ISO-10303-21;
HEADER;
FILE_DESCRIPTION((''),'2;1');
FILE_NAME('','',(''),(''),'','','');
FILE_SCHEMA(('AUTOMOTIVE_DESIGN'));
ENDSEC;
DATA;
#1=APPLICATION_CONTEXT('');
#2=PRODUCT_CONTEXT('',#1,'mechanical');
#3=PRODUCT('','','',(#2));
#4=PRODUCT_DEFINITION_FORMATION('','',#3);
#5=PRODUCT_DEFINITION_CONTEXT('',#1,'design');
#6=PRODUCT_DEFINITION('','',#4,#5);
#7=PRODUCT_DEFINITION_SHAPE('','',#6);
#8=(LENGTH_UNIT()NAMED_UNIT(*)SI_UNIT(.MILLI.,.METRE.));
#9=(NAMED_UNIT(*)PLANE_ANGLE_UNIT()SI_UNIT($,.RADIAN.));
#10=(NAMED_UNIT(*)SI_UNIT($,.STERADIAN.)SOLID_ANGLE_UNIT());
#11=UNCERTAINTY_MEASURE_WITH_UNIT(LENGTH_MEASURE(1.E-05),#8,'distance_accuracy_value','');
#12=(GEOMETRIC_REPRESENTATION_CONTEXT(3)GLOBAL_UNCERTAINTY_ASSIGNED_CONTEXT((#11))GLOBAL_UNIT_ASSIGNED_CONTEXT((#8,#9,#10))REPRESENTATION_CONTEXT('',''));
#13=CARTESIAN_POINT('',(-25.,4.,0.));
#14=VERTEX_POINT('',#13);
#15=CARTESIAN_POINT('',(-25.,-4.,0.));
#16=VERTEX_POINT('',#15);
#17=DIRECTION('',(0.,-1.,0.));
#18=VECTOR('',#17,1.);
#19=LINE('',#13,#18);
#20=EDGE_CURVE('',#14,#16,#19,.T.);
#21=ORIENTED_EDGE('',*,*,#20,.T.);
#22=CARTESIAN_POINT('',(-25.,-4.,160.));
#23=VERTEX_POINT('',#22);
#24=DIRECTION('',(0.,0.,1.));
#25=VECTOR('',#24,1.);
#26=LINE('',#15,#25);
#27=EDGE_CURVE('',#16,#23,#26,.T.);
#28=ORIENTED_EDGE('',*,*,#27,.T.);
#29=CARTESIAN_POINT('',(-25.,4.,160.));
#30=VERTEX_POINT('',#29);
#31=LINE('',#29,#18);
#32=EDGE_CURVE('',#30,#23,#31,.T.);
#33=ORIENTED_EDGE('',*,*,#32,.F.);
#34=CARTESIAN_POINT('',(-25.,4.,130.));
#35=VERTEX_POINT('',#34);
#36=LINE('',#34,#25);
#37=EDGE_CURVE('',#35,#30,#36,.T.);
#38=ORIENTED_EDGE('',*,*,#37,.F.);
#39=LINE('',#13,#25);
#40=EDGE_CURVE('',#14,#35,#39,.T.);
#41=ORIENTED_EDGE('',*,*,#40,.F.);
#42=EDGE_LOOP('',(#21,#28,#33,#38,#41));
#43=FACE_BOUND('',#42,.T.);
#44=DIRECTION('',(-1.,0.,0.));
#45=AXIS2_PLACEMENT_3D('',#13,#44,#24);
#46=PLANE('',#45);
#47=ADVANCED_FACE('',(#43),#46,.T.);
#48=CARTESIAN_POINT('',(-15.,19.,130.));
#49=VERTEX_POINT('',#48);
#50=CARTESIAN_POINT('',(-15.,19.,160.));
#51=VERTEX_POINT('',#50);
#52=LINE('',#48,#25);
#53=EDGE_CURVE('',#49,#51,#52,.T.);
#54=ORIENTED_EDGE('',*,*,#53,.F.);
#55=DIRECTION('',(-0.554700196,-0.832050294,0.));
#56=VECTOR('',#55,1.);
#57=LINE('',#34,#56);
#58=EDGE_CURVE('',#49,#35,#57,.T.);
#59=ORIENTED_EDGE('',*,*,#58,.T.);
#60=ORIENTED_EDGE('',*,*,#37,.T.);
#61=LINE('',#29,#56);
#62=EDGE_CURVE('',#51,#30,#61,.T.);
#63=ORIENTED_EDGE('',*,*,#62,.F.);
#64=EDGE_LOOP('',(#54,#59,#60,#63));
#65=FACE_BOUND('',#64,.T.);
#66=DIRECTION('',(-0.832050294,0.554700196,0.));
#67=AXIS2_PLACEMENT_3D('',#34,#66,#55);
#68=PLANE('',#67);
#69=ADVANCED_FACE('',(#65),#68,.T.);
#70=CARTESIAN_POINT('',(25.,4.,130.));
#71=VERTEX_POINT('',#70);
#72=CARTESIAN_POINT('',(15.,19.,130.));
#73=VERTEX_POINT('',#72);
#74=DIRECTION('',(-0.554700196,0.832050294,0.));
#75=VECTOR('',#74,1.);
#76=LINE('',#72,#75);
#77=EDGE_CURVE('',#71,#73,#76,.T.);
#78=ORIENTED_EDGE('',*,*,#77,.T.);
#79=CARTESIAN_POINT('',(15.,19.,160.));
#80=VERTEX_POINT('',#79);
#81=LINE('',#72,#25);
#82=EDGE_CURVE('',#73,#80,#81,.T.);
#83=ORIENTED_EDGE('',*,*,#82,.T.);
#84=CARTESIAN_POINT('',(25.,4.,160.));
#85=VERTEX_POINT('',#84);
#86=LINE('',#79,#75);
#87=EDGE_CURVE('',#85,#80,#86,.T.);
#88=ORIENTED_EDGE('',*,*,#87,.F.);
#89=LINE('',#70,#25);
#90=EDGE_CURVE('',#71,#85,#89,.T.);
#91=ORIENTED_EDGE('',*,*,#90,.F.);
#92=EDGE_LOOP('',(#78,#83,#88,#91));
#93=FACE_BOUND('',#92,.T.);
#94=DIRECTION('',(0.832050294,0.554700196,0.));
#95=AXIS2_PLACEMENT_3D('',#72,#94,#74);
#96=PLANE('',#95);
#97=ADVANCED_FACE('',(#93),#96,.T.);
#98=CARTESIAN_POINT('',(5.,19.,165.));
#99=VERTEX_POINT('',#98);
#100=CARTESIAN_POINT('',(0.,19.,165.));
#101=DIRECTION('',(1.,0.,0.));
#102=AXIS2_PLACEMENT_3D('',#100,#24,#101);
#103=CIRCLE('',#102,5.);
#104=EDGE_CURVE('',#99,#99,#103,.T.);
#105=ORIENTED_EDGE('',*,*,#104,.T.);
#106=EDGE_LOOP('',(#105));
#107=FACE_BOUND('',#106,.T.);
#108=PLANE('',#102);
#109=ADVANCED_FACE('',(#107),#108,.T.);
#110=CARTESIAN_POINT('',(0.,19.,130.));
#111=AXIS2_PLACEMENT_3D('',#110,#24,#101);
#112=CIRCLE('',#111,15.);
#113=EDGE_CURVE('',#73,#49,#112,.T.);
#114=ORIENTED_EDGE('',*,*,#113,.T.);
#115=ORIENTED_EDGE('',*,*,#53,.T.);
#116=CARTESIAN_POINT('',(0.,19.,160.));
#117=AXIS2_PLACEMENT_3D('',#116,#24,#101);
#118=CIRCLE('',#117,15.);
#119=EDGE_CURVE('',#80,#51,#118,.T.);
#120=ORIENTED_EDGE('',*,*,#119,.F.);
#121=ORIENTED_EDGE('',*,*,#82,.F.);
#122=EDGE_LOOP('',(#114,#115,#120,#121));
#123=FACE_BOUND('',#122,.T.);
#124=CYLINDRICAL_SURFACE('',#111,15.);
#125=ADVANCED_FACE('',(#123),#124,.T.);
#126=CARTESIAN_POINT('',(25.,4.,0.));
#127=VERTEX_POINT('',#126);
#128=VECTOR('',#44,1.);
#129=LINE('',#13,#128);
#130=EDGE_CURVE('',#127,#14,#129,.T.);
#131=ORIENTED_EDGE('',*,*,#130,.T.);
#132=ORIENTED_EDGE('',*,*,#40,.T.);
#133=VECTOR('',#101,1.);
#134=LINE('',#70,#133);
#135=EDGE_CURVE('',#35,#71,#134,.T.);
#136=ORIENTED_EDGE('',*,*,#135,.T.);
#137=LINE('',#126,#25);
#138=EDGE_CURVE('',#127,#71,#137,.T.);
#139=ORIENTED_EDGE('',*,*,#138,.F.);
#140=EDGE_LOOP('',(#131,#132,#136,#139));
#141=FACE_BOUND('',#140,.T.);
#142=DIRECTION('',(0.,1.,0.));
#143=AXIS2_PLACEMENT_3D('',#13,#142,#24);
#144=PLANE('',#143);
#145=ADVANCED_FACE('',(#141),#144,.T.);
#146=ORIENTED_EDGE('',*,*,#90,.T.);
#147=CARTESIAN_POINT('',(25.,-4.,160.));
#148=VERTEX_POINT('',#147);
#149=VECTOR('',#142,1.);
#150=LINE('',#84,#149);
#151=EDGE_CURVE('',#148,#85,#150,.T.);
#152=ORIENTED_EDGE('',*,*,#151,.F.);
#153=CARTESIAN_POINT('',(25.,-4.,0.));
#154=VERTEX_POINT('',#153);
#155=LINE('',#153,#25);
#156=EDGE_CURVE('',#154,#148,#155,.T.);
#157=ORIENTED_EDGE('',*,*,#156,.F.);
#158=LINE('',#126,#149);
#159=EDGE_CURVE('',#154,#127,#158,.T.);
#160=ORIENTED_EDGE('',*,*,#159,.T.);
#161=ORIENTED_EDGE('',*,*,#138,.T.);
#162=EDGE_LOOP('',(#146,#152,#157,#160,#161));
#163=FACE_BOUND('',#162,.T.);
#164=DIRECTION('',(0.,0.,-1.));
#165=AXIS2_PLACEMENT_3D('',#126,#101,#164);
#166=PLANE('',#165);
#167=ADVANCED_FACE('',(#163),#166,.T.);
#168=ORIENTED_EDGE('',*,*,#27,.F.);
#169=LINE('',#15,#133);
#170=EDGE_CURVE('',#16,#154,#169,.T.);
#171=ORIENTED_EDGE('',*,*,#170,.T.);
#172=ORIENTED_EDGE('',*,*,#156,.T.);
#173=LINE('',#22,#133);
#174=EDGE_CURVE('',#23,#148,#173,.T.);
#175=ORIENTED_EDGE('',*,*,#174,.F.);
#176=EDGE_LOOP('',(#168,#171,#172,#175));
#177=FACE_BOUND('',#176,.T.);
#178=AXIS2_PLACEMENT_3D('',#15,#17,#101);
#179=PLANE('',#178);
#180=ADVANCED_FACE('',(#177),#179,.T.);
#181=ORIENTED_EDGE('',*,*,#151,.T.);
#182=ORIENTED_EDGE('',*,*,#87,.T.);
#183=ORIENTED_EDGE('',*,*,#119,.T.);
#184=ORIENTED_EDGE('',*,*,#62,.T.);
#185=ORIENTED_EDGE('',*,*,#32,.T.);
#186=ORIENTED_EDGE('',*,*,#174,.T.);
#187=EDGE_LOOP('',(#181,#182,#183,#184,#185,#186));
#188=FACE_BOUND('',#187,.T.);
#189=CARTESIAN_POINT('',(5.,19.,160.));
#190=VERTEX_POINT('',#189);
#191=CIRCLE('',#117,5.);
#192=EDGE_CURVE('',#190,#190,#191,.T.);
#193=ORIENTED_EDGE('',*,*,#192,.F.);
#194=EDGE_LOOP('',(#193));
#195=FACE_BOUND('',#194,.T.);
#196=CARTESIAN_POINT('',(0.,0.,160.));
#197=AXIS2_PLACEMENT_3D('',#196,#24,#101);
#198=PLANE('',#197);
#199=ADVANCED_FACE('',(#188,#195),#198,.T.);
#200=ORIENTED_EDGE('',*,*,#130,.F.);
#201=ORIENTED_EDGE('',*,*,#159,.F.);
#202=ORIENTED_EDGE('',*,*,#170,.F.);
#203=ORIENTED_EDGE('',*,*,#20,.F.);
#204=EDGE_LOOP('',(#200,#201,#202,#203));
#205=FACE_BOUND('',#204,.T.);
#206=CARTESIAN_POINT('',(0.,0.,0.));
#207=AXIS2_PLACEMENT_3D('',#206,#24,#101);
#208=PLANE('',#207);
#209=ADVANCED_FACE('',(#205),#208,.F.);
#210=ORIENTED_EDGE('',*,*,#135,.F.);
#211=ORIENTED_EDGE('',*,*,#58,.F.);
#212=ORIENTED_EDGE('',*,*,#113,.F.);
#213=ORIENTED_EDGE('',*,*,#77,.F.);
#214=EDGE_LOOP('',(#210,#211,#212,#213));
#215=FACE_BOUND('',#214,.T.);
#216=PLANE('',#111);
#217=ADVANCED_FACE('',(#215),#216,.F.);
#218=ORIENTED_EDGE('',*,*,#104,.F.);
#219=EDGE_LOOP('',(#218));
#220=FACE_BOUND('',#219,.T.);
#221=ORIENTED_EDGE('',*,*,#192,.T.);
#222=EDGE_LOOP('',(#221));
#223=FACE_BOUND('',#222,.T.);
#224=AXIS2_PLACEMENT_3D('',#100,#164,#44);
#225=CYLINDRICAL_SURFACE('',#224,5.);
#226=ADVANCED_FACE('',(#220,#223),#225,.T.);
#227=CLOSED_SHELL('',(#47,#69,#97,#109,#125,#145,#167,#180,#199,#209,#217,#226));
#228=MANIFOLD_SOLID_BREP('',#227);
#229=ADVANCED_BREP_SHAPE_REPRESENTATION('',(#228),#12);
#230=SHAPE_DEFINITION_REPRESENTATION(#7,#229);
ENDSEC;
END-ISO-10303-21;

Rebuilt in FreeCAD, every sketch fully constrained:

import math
import FreeCAD as App
import Part
import Sketcher
Q = App.Units.Quantity


def add_polygon(sketch, points):
    """Adds a closed chain of lines whose ends are joined by coincident constraints."""
    first, n = sketch.GeometryCount, len(points)
    for a, b in zip(points, points[1:] + points[:1]):
        sketch.addGeometry(Part.LineSegment(App.Vector(*a, 0), App.Vector(*b, 0)), False)
    for i in range(n):
        sketch.addConstraint(Sketcher.Constraint("Coincident", first + i, 2, first + (i + 1) % n, 1))

doc = App.newDocument("Part")
body = doc.addObject("PartDesign::Body", "Body")

sketch1 = body.newObject("Sketcher::SketchObject", "Sketch")
sketch1.AttachmentSupport = (doc.getObject("XY_Plane"), [""])
sketch1.MapMode = "FlatFace"
add_polygon(sketch1, [(-25, 4), (-25, -4), (25, -4), (25, 4)])
sketch1.addConstraint([
    Sketcher.Constraint("Vertical", 0),
    Sketcher.Constraint("Horizontal", 1),
    Sketcher.Constraint("Vertical", 2),
    Sketcher.Constraint("Horizontal", 3),
    Sketcher.Constraint("Symmetric", 0, 2, 2, 2, -1, 1),
    Sketcher.Constraint("DistanceX", 1, 1, 1, 2, Q("50 mm")),
    Sketcher.Constraint("DistanceY", 0, 2, 0, 1, Q("8 mm")),
])

sketch2 = body.newObject("Sketcher::SketchObject", "Sketch001")
sketch2.AttachmentSupport = (doc.getObject("XZ_Plane"), [""])
sketch2.MapMode = "FlatFace"
sketch2.AttachmentOffset = App.Placement(App.Vector(0, 0, -55.298324), App.Rotation())
sketch2.addGeometry(Part.LineSegment(App.Vector(0, 0, 0), App.Vector(0, 160, 0)), False)
sketch2.addConstraint([
    Sketcher.Constraint("Vertical", 0),
    Sketcher.Constraint("Coincident", 0, 1, -1, 1),
    Sketcher.Constraint("DistanceY", 0, 1, 0, 2, Q("160 mm")),
])
doc.recompute()

additivepipe = body.newObject("PartDesign::AdditivePipe", "AdditivePipe")
additivepipe.Profile = sketch1
additivepipe.Spine = (sketch2, ["Edge1"])

sketch3 = body.newObject("Sketcher::SketchObject", "Sketch002")
sketch3.AttachmentSupport = (doc.getObject("XY_Plane"), [""])
sketch3.MapMode = "FlatFace"
sketch3.AttachmentOffset = App.Placement(App.Vector(0, 0, 160), App.Rotation())
sketch3.addGeometry([
    Part.LineSegment(App.Vector(25, 4, 0), App.Vector(15, 19, 0)),
    Part.ArcOfCircle(Part.Circle(App.Vector(0, 19, 0), App.Vector(0, 0, 1), 15), math.radians(0), math.radians(180)),
    Part.LineSegment(App.Vector(-15, 19, 0), App.Vector(-25, 4, 0)),
    Part.LineSegment(App.Vector(-25, 4, 0), App.Vector(25, 4, 0)),
], False)
sketch3.addConstraint([
    Sketcher.Constraint("Coincident", 0, 2, 1, 1),
    Sketcher.Constraint("Coincident", 1, 2, 2, 1),
    Sketcher.Constraint("Coincident", 2, 2, 3, 1),
    Sketcher.Constraint("Coincident", 3, 2, 0, 1),
    Sketcher.Constraint("Horizontal", 3),
    Sketcher.Constraint("Symmetric", 0, 2, 1, 2, -2),
    Sketcher.Constraint("Horizontal", 1, 3, 0, 2),
    Sketcher.Constraint("Equal", 0, 2),
    Sketcher.Constraint("Radius", 1, Q("15 mm")),
    Sketcher.Constraint("DistanceX", 3, 1, 3, 2, Q("50 mm")),
    Sketcher.Constraint("DistanceY", -1, 1, 1, 3, Q("19 mm")),
    Sketcher.Constraint("DistanceY", -1, 1, 2, 2, Q("4 mm")),
])
pad1 = body.newObject("PartDesign::Pad", "Pad")
pad1.Profile = sketch3
pad1.Length = 30
pad1.Reversed = True

sketch4 = body.newObject("Sketcher::SketchObject", "Sketch003")
sketch4.AttachmentSupport = (doc.getObject("XY_Plane"), [""])
sketch4.MapMode = "FlatFace"
sketch4.AttachmentOffset = App.Placement(App.Vector(0, 0, 160), App.Rotation())
sketch4.addGeometry(Part.Circle(App.Vector(0, 19, 0), App.Vector(0, 0, 1), 5), False)
sketch4.addConstraint([
    Sketcher.Constraint("PointOnObject", 0, 3, -2),
    Sketcher.Constraint("Diameter", 0, Q("10 mm")),
    Sketcher.Constraint("DistanceY", -1, 1, 0, 3, Q("19 mm")),
])
pad2 = body.newObject("PartDesign::Pad", "Pad001")
pad2.Profile = sketch4
pad2.Length = 5

doc.recompute()
